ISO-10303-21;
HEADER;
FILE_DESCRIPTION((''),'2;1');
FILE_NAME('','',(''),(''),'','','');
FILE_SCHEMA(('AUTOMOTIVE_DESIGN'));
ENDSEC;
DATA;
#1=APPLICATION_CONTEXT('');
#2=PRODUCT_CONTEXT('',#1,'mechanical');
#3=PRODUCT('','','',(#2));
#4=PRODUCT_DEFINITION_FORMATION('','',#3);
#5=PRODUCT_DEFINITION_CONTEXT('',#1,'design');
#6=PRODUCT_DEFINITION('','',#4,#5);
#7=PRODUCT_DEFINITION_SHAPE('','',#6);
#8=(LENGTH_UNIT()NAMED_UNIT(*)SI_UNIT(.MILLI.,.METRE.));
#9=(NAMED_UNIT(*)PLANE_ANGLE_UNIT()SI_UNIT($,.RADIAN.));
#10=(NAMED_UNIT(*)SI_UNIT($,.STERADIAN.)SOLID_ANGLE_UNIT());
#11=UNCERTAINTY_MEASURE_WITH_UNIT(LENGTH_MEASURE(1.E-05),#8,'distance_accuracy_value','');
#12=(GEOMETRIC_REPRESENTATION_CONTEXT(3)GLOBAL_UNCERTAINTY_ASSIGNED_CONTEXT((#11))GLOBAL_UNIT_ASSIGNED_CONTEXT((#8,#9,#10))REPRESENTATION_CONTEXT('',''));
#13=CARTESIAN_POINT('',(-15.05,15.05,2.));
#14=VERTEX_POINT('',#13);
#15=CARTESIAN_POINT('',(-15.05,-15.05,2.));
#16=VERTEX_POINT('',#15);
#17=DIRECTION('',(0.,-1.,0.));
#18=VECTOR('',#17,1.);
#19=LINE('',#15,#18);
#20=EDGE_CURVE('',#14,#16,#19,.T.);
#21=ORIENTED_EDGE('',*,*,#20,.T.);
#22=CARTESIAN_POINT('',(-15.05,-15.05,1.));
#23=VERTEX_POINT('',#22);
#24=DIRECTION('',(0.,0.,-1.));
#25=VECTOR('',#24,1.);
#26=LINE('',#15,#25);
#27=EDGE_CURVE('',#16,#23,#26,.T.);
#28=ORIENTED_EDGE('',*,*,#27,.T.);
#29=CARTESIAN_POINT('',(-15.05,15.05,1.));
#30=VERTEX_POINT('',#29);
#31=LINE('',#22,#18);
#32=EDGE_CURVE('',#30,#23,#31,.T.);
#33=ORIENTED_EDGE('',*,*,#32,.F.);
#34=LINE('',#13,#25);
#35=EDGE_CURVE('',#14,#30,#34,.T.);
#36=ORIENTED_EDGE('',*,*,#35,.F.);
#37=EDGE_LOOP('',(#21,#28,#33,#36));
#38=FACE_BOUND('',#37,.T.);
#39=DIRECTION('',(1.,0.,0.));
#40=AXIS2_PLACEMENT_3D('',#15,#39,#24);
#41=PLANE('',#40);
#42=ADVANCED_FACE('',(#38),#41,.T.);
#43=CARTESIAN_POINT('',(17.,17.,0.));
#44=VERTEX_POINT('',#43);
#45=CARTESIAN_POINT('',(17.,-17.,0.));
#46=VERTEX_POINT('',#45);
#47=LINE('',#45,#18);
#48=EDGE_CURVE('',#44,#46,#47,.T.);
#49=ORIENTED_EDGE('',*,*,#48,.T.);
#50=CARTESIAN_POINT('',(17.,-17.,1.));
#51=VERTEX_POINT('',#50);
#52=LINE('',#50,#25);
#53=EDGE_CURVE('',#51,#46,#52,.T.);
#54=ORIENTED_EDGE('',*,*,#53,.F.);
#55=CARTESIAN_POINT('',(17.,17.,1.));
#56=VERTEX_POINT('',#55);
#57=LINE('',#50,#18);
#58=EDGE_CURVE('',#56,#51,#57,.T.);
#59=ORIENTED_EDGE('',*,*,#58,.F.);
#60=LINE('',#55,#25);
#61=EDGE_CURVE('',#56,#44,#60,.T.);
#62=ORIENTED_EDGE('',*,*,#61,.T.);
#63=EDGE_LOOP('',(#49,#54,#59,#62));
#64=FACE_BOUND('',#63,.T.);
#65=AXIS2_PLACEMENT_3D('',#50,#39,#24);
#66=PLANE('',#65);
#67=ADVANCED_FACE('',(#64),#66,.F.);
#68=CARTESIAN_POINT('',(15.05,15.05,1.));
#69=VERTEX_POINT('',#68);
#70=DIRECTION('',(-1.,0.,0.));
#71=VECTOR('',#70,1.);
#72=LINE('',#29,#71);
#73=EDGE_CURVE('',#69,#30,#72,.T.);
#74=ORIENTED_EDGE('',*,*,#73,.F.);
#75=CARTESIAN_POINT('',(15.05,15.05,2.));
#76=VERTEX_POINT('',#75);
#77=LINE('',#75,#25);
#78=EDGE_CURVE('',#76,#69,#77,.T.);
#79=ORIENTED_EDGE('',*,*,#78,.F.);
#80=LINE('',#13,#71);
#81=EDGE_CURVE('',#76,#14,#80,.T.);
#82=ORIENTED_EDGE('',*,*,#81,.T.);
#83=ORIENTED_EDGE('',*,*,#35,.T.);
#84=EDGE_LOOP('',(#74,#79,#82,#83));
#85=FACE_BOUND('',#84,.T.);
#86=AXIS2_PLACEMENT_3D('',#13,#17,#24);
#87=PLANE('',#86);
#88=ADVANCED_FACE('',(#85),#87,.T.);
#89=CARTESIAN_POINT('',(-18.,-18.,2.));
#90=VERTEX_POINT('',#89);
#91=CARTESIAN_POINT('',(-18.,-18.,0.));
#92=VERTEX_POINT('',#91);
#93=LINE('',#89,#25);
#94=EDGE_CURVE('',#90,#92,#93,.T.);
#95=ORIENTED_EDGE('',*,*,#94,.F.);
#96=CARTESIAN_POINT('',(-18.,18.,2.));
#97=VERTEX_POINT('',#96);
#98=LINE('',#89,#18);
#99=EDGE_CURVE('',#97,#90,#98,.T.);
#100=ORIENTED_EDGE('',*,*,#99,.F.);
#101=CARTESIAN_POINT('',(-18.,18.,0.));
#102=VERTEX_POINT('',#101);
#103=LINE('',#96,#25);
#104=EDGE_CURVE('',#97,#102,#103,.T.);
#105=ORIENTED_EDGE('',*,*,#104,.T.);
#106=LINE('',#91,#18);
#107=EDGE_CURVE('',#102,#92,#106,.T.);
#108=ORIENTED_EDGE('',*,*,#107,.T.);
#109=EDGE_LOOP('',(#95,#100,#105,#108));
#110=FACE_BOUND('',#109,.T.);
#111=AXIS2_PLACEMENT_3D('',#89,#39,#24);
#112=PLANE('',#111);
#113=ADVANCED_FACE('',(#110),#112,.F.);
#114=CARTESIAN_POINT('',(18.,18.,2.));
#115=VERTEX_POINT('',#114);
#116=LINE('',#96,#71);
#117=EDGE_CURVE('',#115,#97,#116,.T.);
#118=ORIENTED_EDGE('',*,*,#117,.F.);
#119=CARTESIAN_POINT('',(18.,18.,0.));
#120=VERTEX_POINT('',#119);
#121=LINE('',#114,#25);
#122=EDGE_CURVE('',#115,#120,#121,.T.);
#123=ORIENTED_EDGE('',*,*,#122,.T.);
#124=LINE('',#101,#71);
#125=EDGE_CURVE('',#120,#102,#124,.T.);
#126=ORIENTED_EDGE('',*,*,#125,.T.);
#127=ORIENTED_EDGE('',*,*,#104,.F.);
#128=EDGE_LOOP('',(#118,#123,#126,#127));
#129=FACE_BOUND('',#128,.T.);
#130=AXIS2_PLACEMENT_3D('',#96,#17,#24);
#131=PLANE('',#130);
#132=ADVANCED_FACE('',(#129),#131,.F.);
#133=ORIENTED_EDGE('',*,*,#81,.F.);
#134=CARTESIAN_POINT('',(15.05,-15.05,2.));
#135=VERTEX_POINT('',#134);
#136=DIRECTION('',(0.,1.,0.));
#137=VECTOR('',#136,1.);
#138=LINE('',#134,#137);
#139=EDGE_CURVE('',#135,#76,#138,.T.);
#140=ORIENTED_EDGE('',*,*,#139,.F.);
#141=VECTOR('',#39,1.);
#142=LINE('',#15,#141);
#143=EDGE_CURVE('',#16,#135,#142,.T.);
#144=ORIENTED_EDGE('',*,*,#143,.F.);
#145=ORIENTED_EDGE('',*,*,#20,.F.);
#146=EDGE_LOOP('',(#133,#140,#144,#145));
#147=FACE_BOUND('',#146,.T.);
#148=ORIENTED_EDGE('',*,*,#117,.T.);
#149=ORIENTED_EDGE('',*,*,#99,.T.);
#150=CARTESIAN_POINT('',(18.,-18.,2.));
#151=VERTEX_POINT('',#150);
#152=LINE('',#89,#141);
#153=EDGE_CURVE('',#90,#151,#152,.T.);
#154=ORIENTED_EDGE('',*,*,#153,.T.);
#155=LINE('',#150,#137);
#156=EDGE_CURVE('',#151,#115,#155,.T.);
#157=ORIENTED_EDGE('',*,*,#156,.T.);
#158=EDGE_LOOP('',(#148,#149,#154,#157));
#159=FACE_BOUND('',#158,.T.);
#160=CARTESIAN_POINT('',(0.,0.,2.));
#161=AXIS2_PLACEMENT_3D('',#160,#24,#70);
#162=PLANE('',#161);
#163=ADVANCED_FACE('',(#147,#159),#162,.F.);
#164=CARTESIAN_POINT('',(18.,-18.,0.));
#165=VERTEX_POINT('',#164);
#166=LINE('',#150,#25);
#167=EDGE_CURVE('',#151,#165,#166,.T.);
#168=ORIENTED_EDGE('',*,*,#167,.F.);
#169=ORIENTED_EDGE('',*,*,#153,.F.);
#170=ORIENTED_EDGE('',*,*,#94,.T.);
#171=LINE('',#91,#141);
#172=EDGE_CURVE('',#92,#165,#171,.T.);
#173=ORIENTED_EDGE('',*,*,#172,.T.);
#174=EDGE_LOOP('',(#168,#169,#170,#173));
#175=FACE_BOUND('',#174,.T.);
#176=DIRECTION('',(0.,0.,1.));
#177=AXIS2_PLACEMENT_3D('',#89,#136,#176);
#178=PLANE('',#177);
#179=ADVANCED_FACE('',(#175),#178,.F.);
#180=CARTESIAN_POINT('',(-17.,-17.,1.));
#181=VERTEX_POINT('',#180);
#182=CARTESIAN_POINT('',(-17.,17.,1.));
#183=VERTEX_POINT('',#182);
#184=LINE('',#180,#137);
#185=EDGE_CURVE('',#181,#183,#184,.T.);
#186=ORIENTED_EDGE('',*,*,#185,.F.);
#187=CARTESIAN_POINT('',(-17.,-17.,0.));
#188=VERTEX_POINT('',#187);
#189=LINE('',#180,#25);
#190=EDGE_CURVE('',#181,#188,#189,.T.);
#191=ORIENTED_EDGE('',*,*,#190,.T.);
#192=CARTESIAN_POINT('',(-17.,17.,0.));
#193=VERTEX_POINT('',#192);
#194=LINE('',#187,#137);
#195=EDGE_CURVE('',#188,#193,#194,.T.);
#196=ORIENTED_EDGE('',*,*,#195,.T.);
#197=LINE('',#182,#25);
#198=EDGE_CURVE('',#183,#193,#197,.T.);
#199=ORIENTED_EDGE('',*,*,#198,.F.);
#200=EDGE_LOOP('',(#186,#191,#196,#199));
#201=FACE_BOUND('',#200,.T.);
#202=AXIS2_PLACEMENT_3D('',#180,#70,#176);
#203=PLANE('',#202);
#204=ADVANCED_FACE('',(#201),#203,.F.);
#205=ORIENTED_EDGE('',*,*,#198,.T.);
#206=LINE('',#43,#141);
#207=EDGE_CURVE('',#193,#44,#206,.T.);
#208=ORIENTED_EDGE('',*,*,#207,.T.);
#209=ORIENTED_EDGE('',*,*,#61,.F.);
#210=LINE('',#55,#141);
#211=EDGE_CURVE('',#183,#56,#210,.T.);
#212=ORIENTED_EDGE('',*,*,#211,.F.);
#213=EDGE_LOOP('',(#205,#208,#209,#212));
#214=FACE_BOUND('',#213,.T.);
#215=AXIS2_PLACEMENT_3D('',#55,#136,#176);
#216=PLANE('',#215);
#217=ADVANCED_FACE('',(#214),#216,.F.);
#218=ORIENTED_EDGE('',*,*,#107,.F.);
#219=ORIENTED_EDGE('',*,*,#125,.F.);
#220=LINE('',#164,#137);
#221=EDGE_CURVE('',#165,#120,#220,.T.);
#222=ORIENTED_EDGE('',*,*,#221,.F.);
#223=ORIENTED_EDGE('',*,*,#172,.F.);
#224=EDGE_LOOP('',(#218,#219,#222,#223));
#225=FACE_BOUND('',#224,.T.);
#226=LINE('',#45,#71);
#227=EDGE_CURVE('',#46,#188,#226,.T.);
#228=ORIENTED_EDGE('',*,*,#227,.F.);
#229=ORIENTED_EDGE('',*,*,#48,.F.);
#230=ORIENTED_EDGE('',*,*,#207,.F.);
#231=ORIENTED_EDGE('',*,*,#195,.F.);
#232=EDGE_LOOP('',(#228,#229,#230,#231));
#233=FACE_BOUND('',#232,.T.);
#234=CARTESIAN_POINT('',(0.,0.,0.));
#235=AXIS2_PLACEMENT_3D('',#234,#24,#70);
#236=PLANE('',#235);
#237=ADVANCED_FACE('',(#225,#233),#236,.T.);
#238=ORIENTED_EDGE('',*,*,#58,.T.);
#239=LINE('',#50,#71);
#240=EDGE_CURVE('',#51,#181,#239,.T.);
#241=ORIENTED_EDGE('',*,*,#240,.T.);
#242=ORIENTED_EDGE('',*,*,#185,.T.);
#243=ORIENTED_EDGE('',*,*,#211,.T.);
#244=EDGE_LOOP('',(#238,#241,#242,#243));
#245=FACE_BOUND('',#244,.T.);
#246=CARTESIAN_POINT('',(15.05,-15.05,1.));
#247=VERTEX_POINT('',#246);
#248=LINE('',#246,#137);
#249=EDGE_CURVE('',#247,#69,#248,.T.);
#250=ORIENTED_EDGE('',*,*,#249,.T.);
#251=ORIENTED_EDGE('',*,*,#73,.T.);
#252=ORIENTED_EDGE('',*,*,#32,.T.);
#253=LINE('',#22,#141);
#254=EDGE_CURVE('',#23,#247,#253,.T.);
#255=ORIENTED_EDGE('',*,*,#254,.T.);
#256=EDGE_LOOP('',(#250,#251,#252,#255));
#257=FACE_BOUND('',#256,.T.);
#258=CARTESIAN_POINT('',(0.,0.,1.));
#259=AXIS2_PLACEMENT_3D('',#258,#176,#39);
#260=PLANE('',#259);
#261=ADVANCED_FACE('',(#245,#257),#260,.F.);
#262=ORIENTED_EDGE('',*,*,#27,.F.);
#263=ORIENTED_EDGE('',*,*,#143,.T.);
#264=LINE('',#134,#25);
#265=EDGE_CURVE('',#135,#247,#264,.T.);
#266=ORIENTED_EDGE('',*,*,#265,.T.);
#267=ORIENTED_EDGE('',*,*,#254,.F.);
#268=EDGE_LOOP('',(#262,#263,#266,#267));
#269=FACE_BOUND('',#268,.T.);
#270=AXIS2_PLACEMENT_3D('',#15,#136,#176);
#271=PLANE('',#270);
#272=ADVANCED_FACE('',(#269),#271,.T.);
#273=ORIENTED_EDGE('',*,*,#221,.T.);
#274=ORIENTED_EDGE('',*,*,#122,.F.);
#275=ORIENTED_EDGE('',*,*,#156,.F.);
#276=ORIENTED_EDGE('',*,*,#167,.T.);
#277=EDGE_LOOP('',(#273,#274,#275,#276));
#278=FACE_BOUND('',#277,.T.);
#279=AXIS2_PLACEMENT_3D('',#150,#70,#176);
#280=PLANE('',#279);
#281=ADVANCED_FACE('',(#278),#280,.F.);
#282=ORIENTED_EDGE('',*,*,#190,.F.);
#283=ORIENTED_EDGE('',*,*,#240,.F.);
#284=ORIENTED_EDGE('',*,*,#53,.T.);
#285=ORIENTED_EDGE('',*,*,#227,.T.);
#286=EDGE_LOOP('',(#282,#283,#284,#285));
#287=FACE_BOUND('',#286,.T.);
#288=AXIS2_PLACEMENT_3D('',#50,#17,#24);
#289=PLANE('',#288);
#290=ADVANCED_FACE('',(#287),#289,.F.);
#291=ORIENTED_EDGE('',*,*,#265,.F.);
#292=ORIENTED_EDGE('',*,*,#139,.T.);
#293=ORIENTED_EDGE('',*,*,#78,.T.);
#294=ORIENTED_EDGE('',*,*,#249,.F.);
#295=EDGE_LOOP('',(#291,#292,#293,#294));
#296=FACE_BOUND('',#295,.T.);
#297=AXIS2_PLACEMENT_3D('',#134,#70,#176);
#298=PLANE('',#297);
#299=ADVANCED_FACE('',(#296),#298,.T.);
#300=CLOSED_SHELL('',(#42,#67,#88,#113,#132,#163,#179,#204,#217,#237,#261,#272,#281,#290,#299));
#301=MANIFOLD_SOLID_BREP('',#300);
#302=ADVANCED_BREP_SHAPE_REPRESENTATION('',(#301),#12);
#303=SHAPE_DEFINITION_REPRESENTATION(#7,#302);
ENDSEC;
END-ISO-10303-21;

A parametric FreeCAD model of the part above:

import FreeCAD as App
import Part
import Sketcher
from FreeCAD import Vector


def add_polygon(sketch, points):
    """Adds a closed chain of lines whose ends are joined by coincident constraints."""
    first, n = sketch.GeometryCount, len(points)
    for a, b in zip(points, points[1:] + points[:1]):
        sketch.addGeometry(Part.LineSegment(App.Vector(*a, 0), App.Vector(*b, 0)), False)
    for i in range(n):
        sketch.addConstraint(Sketcher.Constraint("Coincident", first + i, 2, first + (i + 1) % n, 1))

doc = App.newDocument("Part")
params = doc.addObject("Spreadsheet::Sheet", "Params")
for row, (alias, value) in enumerate([
    ("sketch1_width", "36 mm"),
    ("sketch1_width2", "30.1 mm"),
    ("pad1_length", "2 mm"),
    ("sketch2_width", "34 mm"),
    ("pocket1_length", "1 mm"),
], start=1):
    params.set(f"A{row}", alias)
    params.set(f"B{row}", "=" + value)
    params.setAlias(f"B{row}", alias)

body = doc.addObject("PartDesign::Body", "Body")

# Sketch on XY plane
sketch1 = body.newObject("Sketcher::SketchObject", "Sketch")
sketch1.AttachmentSupport = (doc.getObject("XY_Plane"), [""])
sketch1.MapMode = "FlatFace"
add_polygon(sketch1, [(-18, 18), (-18, -18), (18, -18), (18, 18)])  # lines 0-3
add_polygon(sketch1, [(15.05, -15.05), (-15.05, -15.05), (-15.05, 15.05), (15.05, 15.05)])  # lines 4-7
sketch1.addConstraint([
    Sketcher.Constraint("Vertical", 0),
    Sketcher.Constraint("Horizontal", 1),
    Sketcher.Constraint("Vertical", 2),
    Sketcher.Constraint("Horizontal", 3),
    Sketcher.Constraint("Horizontal", 4),
    Sketcher.Constraint("Vertical", 5),
    Sketcher.Constraint("Horizontal", 6),
    Sketcher.Constraint("Vertical", 7),
    Sketcher.Constraint("Symmetric", 0, 2, 2, 2, -1, 1),
    Sketcher.Constraint("Symmetric", 4, 2, 6, 2, -1, 1),
    Sketcher.Constraint("Equal", 3, 0),
    Sketcher.Constraint("Equal", 6, 5),
    Sketcher.Constraint("DistanceX", 1, 1, 1, 2, 36.0),
    Sketcher.Constraint("DistanceX", 4, 2, 4, 1, 30.1),
])
sketch1.setExpression("Constraints[20]", "Params.sketch1_width")
sketch1.setExpression("Constraints[21]", "Params.sketch1_width2")
pad1 = body.newObject("PartDesign::Pad", "Pad")
pad1.Profile = sketch1
pad1.setExpression("Length", "Params.pad1_length")

# Sketch on XY plane
sketch2 = body.newObject("Sketcher::SketchObject", "Sketch001")
sketch2.AttachmentSupport = (doc.getObject("XY_Plane"), [""])
sketch2.MapMode = "FlatFace"
add_polygon(sketch2, [(17, 17), (17, -17), (-17, -17), (-17, 17)])  # lines 0-3
sketch2.addConstraint([
    Sketcher.Constraint("Vertical", 0),
    Sketcher.Constraint("Horizontal", 1),
    Sketcher.Constraint("Vertical", 2),
    Sketcher.Constraint("Horizontal", 3),
    Sketcher.Constraint("Symmetric", 0, 2, 2, 2, -1, 1),
    Sketcher.Constraint("Equal", 3, 0),
    Sketcher.Constraint("DistanceX", 1, 2, 1, 1, 34.0),
])
sketch2.setExpression("Constraints[10]", "Params.sketch2_width")
pocket1 = body.newObject("PartDesign::Pocket", "Pocket")
pocket1.Profile = sketch2
pocket1.setExpression("Length", "Params.pocket1_length")
pocket1.Reversed = True

doc.recompute()
